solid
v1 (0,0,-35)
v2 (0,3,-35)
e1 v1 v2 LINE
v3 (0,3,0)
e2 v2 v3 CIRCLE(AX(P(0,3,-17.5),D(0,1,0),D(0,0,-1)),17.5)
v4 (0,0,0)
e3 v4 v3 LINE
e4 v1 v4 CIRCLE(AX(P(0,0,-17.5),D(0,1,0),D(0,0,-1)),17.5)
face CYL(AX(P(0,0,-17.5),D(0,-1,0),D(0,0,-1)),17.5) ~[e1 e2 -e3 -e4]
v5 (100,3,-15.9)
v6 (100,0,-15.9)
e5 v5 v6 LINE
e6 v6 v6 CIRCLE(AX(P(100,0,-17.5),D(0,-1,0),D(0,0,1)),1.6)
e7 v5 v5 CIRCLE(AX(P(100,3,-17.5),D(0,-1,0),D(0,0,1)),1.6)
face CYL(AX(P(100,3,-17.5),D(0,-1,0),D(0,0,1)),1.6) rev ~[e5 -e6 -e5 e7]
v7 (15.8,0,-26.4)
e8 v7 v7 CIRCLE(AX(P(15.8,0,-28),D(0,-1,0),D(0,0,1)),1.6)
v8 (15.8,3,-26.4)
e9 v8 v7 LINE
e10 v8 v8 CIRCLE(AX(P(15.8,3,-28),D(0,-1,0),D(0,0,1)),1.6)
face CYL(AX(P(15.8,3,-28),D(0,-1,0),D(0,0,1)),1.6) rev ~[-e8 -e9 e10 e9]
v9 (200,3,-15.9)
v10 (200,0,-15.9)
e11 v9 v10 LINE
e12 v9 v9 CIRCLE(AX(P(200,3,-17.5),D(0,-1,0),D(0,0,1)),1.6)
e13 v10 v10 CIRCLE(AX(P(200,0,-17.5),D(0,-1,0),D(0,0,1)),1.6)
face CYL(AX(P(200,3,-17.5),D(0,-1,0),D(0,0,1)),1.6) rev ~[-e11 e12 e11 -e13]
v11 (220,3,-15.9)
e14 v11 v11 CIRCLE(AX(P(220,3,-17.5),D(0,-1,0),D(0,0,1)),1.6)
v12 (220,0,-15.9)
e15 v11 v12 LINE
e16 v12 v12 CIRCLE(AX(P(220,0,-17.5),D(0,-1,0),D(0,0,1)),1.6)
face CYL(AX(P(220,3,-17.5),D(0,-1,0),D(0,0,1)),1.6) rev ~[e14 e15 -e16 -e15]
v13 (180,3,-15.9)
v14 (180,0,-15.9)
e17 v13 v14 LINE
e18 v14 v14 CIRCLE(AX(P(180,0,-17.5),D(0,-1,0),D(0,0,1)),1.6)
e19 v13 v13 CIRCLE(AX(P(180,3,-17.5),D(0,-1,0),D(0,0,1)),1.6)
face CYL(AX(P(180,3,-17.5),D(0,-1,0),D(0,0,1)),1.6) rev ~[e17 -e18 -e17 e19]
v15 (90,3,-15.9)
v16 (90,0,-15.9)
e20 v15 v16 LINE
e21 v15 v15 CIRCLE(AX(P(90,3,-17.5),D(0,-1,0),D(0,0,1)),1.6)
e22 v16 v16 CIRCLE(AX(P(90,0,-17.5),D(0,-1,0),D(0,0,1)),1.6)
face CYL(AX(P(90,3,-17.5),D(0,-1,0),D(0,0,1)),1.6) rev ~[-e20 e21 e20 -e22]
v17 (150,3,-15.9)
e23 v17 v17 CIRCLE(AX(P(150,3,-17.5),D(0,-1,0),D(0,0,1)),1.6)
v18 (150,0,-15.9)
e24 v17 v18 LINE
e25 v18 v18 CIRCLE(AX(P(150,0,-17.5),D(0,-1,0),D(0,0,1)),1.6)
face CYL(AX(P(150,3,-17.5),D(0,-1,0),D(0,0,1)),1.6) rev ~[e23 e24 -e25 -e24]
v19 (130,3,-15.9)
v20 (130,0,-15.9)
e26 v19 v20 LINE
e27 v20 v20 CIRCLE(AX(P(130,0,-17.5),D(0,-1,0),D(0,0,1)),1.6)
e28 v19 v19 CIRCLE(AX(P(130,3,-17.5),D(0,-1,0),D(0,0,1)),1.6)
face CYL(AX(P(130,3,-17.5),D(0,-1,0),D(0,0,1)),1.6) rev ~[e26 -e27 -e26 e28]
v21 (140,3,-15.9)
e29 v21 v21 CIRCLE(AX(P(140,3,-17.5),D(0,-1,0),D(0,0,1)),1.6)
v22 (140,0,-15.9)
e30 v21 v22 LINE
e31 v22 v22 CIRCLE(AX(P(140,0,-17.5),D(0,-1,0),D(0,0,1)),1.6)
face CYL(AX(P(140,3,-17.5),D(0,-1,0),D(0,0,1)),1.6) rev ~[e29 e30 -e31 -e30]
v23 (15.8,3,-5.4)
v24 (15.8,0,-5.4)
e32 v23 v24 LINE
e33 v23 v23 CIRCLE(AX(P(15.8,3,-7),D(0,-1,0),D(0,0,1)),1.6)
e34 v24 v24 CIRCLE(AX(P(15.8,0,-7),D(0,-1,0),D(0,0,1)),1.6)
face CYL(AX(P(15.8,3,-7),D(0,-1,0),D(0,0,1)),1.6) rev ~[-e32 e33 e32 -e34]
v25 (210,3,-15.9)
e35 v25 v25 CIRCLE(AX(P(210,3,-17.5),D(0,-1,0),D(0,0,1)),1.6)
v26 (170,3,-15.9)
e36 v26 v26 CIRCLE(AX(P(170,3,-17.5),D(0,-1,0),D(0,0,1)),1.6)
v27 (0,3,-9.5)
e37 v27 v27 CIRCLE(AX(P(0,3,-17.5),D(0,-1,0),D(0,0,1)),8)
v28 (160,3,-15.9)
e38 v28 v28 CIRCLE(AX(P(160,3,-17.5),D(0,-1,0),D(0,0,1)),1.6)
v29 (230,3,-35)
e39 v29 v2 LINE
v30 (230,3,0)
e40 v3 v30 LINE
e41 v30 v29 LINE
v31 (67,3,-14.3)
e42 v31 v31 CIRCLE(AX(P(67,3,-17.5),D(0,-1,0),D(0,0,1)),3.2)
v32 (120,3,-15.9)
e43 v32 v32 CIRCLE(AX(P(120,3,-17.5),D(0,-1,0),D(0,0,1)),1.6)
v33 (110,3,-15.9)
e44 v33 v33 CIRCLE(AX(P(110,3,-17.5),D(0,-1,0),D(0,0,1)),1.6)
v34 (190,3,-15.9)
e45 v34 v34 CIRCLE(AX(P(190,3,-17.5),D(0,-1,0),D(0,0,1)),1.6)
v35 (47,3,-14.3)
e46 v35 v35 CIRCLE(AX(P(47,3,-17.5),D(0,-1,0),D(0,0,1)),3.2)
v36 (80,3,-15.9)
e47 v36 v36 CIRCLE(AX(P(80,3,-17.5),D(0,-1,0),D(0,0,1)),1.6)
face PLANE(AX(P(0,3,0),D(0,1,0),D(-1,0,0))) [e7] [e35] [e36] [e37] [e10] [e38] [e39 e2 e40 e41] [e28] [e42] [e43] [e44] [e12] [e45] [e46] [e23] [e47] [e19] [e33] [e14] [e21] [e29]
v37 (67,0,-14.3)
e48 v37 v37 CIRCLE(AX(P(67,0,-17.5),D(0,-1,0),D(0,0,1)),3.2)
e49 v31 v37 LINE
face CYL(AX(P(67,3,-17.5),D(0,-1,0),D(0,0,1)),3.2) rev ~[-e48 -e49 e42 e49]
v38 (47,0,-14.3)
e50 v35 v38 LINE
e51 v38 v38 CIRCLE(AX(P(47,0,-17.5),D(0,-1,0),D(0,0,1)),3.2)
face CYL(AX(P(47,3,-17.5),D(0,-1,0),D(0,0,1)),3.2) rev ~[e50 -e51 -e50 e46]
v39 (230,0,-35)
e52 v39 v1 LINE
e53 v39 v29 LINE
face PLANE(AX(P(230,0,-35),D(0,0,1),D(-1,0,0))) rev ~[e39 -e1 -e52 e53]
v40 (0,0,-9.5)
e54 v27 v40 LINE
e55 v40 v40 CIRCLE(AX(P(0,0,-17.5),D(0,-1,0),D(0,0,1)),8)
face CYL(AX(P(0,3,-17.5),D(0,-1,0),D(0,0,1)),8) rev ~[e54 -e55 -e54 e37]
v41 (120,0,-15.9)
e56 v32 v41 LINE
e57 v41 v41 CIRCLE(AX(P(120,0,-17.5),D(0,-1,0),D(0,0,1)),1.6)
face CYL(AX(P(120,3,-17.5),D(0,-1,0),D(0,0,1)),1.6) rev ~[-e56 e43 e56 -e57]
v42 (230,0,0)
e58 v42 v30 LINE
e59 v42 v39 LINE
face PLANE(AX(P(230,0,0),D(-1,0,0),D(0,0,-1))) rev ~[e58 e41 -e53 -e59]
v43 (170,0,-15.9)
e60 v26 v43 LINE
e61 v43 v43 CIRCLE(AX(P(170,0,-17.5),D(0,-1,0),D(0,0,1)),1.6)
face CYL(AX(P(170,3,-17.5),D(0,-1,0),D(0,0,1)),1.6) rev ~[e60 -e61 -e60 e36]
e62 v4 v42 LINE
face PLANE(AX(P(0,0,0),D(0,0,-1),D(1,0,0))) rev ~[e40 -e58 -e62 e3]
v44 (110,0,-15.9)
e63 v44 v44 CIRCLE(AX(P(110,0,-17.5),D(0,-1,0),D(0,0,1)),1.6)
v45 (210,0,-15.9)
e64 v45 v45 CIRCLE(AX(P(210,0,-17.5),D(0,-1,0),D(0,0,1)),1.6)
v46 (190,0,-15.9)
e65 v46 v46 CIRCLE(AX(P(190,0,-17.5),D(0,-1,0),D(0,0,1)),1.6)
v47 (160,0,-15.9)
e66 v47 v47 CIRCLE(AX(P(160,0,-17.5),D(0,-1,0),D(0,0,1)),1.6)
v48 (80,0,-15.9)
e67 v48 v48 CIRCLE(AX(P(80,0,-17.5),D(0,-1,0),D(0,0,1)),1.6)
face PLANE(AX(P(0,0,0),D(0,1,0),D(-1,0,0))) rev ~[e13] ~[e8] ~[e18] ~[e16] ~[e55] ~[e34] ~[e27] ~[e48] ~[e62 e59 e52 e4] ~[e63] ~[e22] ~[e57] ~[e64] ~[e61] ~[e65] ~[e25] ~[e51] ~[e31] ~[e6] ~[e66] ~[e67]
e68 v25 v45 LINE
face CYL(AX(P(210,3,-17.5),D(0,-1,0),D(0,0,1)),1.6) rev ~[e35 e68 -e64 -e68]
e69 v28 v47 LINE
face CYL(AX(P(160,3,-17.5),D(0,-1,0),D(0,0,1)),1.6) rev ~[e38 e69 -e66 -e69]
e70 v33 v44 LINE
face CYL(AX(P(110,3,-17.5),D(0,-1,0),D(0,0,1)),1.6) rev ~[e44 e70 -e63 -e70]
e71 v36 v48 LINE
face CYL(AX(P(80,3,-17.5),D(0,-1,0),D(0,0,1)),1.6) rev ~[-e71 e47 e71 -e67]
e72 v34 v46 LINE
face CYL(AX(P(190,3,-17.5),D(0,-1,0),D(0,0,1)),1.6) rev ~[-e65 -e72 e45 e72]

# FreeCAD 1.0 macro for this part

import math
import FreeCAD as App
import Part
import Sketcher
from FreeCAD import Vector
Q = App.Units.Quantity

doc = App.newDocument("Part")
params = doc.addObject("Spreadsheet::Sheet", "Params")
for row, (alias, value) in enumerate([
    ("sketch1_radius", "17.5 mm"),
    ("sketch1_width", "230 mm"),
    ("pad1_length", "3 mm"),
    ("sketch2_diameter", "3.2 mm"),
    ("hole_diameter", "3.2 mm"),
    ("sketch3_diameter", "16 mm"),
    ("hole2_diameter", "16 mm"),
    ("sketch4_diameter", "3.2 mm"),
    ("hole3_diameter", "3.2 mm"),
    ("sketch5_diameter", "6.4 mm"),
    ("hole4_diameter", "6.4 mm"),
], start=1):
    params.set(f"A{row}", alias)
    params.set(f"B{row}", "=" + value)
    params.setAlias(f"B{row}", alias)

body = doc.addObject("PartDesign::Body", "Body")

# Sketch on XZ plane
sketch1 = body.newObject("Sketcher::SketchObject", "Sketch")
sketch1.AttachmentSupport = (doc.getObject("XZ_Plane"), [""])
sketch1.MapMode = "FlatFace"
sketch1.addGeometry([
    Part.LineSegment(Vector(230, -35, 0), Vector(0, -35, 0)),
    Part.ArcOfCircle(Part.Circle(Vector(0, -18, 0), Vector(0, 0, 1), 18), math.radians(90), math.radians(270)),
    Part.LineSegment(Vector(0, 0, 0), Vector(230, 0, 0)),
    Part.LineSegment(Vector(230, 0, 0), Vector(230, -35, 0)),
], False)
sketch1.addConstraint([
    Sketcher.Constraint("Tangent", 0, 2, 1, 2),
    Sketcher.Constraint("Tangent", 1, 1, 2, 1),
    Sketcher.Constraint("Coincident", 2, 2, 3, 1),
    Sketcher.Constraint("Coincident", 3, 2, 0, 1),
    Sketcher.Constraint("Horizontal", 0),
    Sketcher.Constraint("Horizontal", 2),
    Sketcher.Constraint("Vertical", 3),
    Sketcher.Constraint("Coincident", 1, 1, -1, 1),
    Sketcher.Constraint("Radius", 1, Q("17.5 mm")),
    Sketcher.Constraint("DistanceX", 0, 2, 0, 1, Q("230 mm")),
])
sketch1.setExpression("Constraints[8]", "Params.sketch1_radius")
sketch1.setExpression("Constraints[9]", "Params.sketch1_width")
pad1 = body.newObject("PartDesign::Pad", "Pad")
pad1.Profile = sketch1
pad1.setExpression("Length", "Params.pad1_length")
pad1.Reversed = True

# Sketch on XZ plane
sketch2 = body.newObject("Sketcher::SketchObject", "Sketch001")
sketch2.AttachmentSupport = (doc.getObject("XZ_Plane"), [""])
sketch2.MapMode = "FlatFace"
sketch2.AttachmentOffset = App.Placement(Vector(0, 0, -3), App.Rotation())
sketch2.addGeometry([
    Part.Circle(Vector(90, -17.5, 0), Vector(0, 0, 1), 1.6),  # 0
    Part.Circle(Vector(100, -17.5, 0), Vector(0, 0, 1), 1.6),  # 1
    Part.Circle(Vector(110, -17.5, 0), Vector(0, 0, 1), 1.6),  # 2
    Part.Circle(Vector(120, -17.5, 0), Vector(0, 0, 1), 1.6),  # 3
    Part.Circle(Vector(130, -17.5, 0), Vector(0, 0, 1), 1.6),  # 4
    Part.Circle(Vector(140, -17.5, 0), Vector(0, 0, 1), 1.6),  # 5
    Part.Circle(Vector(150, -17.5, 0), Vector(0, 0, 1), 1.6),  # 6
    Part.Circle(Vector(160, -17.5, 0), Vector(0, 0, 1), 1.6),  # 7
    Part.Circle(Vector(170, -17.5, 0), Vector(0, 0, 1), 1.6),  # 8
    Part.Circle(Vector(180, -17.5, 0), Vector(0, 0, 1), 1.6),  # 9
    Part.Circle(Vector(190, -17.5, 0), Vector(0, 0, 1), 1.6),  # 10
    Part.Circle(Vector(200, -17.5, 0), Vector(0, 0, 1), 1.6),  # 11
    Part.Circle(Vector(210, -17.5, 0), Vector(0, 0, 1), 1.6),  # 12
    Part.Circle(Vector(220, -17.5, 0), Vector(0, 0, 1), 1.6),  # 13
    Part.Circle(Vector(80, -17.5, 0), Vector(0, 0, 1), 1.6),  # 14
], False)
sketch2.addConstraint([
    Sketcher.Constraint("Equal", 0, 1),
    Sketcher.Constraint("Equal", 1, 2),
    Sketcher.Constraint("Equal", 2, 3),
    Sketcher.Constraint("Equal", 3, 4),
    Sketcher.Constraint("Equal", 4, 5),
    Sketcher.Constraint("Equal", 5, 6),
    Sketcher.Constraint("Equal", 6, 7),
    Sketcher.Constraint("Equal", 7, 8),
    Sketcher.Constraint("Equal", 8, 9),
    Sketcher.Constraint("Equal", 9, 10),
    Sketcher.Constraint("Equal", 10, 11),
    Sketcher.Constraint("Equal", 11, 12),
    Sketcher.Constraint("Equal", 12, 13),
    Sketcher.Constraint("Equal", 13, 14),
    Sketcher.Constraint("Horizontal", 0, 3, 1, 3),
    Sketcher.Constraint("Horizontal", 1, 3, 2, 3),
    Sketcher.Constraint("Horizontal", 2, 3, 3, 3),
    Sketcher.Constraint("Horizontal", 3, 3, 4, 3),
    Sketcher.Constraint("Horizontal", 4, 3, 5, 3),
    Sketcher.Constraint("Horizontal", 5, 3, 6, 3),
    Sketcher.Constraint("Horizontal", 6, 3, 7, 3),
    Sketcher.Constraint("Horizontal", 7, 3, 8, 3),
    Sketcher.Constraint("Horizontal", 8, 3, 9, 3),
    Sketcher.Constraint("Horizontal", 9, 3, 10, 3),
    Sketcher.Constraint("Horizontal", 10, 3, 11, 3),
    Sketcher.Constraint("Horizontal", 11, 3, 12, 3),
    Sketcher.Constraint("Horizontal", 12, 3, 13, 3),
    Sketcher.Constraint("Horizontal", 13, 3, 14, 3),
    Sketcher.Constraint("Diameter", 0, Q("3.2 mm")),
    Sketcher.Constraint("DistanceX", -1, 1, 0, 3, Q("90 mm")),
    Sketcher.Constraint("DistanceX", -1, 1, 1, 3, Q("100 mm")),
    Sketcher.Constraint("DistanceX", -1, 1, 2, 3, Q("110 mm")),
    Sketcher.Constraint("DistanceX", -1, 1, 3, 3, Q("120 mm")),
    Sketcher.Constraint("DistanceX", -1, 1, 4, 3, Q("130 mm")),
    Sketcher.Constraint("DistanceX", -1, 1, 5, 3, Q("140 mm")),
    Sketcher.Constraint("DistanceX", -1, 1, 6, 3, Q("150 mm")),
    Sketcher.Constraint("DistanceX", -1, 1, 7, 3, Q("160 mm")),
    Sketcher.Constraint("DistanceX", -1, 1, 8, 3, Q("170 mm")),
    Sketcher.Constraint("DistanceX", -1, 1, 9, 3, Q("180 mm")),
    Sketcher.Constraint("DistanceX", -1, 1, 10, 3, Q("190 mm")),
    Sketcher.Constraint("DistanceX", -1, 1, 11, 3, Q("200 mm")),
    Sketcher.Constraint("DistanceX", -1, 1, 12, 3, Q("210 mm")),
    Sketcher.Constraint("DistanceX", -1, 1, 13, 3, Q("220 mm")),
    Sketcher.Constraint("DistanceX", -1, 1, 14, 3, Q("80 mm")),
    Sketcher.Constraint("DistanceY", 0, 3, -1, 1, Q("17.5 mm")),
])
sketch2.setExpression("Constraints[28]", "Params.sketch2_diameter")
doc.recompute()
hole = body.newObject("PartDesign::Hole", "Hole")
hole.Profile = sketch2
hole.ThreadType = "None"
hole.setExpression("Diameter", "Params.hole_diameter")
hole.DepthType = "ThroughAll"
hole.Reversed = True

# Sketch on XZ plane
sketch3 = body.newObject("Sketcher::SketchObject", "Sketch002")
sketch3.AttachmentSupport = (doc.getObject("XZ_Plane"), [""])
sketch3.MapMode = "FlatFace"
sketch3.AttachmentOffset = App.Placement(Vector(0, 0, -3), App.Rotation())
sketch3.addGeometry(Part.Circle(Vector(0, -18, 0), Vector(0, 0, 1), 8), False)
sketch3.addConstraint([
    Sketcher.Constraint("PointOnObject", 0, 3, -2),
    Sketcher.Constraint("Diameter", 0, Q("16 mm")),
    Sketcher.Constraint("DistanceY", 0, 3, -1, 1, Q("17.5 mm")),
])
sketch3.setExpression("Constraints[1]", "Params.sketch3_diameter")
doc.recompute()
hole2 = body.newObject("PartDesign::Hole", "Hole001")
hole2.Profile = sketch3
hole2.ThreadType = "None"
hole2.setExpression("Diameter", "Params.hole2_diameter")
hole2.DepthType = "ThroughAll"
hole2.Reversed = True

# Sketch on XZ plane
sketch4 = body.newObject("Sketcher::SketchObject", "Sketch003")
sketch4.AttachmentSupport = (doc.getObject("XZ_Plane"), [""])
sketch4.MapMode = "FlatFace"
sketch4.AttachmentOffset = App.Placement(Vector(0, 0, -3), App.Rotation())
sketch4.addGeometry([
    Part.Circle(Vector(15.8, -28, 0), Vector(0, 0, 1), 1.6),
    Part.Circle(Vector(15.8, -7, 0), Vector(0, 0, 1), 1.6),
], False)
sketch4.addConstraint([
    Sketcher.Constraint("Equal", 0, 1),
    Sketcher.Constraint("Vertical", 0, 3, 1, 3),
    Sketcher.Constraint("Diameter", 0, Q("3.2 mm")),
    Sketcher.Constraint("DistanceY", 0, 3, -1, 1, Q("28 mm")),
    Sketcher.Constraint("DistanceY", 1, 3, -1, 1, Q("7 mm")),
    Sketcher.Constraint("DistanceX", -1, 1, 0, 3, Q("15.8 mm")),
])
sketch4.setExpression("Constraints[2]", "Params.sketch4_diameter")
doc.recompute()
hole3 = body.newObject("PartDesign::Hole", "Hole002")
hole3.Profile = sketch4
hole3.ThreadType = "None"
hole3.setExpression("Diameter", "Params.hole3_diameter")
hole3.DepthType = "ThroughAll"
hole3.Reversed = True

# Sketch on XZ plane
sketch5 = body.newObject("Sketcher::SketchObject", "Sketch004")
sketch5.AttachmentSupport = (doc.getObject("XZ_Plane"), [""])
sketch5.MapMode = "FlatFace"
sketch5.AttachmentOffset = App.Placement(Vector(0, 0, -3), App.Rotation())
sketch5.addGeometry([
    Part.Circle(Vector(67, -17.5, 0), Vector(0, 0, 1), 3.2),
    Part.Circle(Vector(47, -17.5, 0), Vector(0, 0, 1), 3.2),
], False)
sketch5.addConstraint([
    Sketcher.Constraint("Equal", 0, 1),
    Sketcher.Constraint("Horizontal", 0, 3, 1, 3),
    Sketcher.Constraint("Diameter", 0, Q("6.4 mm")),
    Sketcher.Constraint("DistanceX", -1, 1, 0, 3, Q("67 mm")),
    Sketcher.Constraint("DistanceX", -1, 1, 1, 3, Q("47 mm")),
    Sketcher.Constraint("DistanceY", 0, 3, -1, 1, Q("17.5 mm")),
])
sketch5.setExpression("Constraints[2]", "Params.sketch5_diameter")
doc.recompute()
hole4 = body.newObject("PartDesign::Hole", "Hole003")
hole4.Profile = sketch5
hole4.ThreadType = "None"
hole4.setExpression("Diameter", "Params.hole4_diameter")
hole4.DepthType = "ThroughAll"
hole4.Reversed = True

doc.recompute()
